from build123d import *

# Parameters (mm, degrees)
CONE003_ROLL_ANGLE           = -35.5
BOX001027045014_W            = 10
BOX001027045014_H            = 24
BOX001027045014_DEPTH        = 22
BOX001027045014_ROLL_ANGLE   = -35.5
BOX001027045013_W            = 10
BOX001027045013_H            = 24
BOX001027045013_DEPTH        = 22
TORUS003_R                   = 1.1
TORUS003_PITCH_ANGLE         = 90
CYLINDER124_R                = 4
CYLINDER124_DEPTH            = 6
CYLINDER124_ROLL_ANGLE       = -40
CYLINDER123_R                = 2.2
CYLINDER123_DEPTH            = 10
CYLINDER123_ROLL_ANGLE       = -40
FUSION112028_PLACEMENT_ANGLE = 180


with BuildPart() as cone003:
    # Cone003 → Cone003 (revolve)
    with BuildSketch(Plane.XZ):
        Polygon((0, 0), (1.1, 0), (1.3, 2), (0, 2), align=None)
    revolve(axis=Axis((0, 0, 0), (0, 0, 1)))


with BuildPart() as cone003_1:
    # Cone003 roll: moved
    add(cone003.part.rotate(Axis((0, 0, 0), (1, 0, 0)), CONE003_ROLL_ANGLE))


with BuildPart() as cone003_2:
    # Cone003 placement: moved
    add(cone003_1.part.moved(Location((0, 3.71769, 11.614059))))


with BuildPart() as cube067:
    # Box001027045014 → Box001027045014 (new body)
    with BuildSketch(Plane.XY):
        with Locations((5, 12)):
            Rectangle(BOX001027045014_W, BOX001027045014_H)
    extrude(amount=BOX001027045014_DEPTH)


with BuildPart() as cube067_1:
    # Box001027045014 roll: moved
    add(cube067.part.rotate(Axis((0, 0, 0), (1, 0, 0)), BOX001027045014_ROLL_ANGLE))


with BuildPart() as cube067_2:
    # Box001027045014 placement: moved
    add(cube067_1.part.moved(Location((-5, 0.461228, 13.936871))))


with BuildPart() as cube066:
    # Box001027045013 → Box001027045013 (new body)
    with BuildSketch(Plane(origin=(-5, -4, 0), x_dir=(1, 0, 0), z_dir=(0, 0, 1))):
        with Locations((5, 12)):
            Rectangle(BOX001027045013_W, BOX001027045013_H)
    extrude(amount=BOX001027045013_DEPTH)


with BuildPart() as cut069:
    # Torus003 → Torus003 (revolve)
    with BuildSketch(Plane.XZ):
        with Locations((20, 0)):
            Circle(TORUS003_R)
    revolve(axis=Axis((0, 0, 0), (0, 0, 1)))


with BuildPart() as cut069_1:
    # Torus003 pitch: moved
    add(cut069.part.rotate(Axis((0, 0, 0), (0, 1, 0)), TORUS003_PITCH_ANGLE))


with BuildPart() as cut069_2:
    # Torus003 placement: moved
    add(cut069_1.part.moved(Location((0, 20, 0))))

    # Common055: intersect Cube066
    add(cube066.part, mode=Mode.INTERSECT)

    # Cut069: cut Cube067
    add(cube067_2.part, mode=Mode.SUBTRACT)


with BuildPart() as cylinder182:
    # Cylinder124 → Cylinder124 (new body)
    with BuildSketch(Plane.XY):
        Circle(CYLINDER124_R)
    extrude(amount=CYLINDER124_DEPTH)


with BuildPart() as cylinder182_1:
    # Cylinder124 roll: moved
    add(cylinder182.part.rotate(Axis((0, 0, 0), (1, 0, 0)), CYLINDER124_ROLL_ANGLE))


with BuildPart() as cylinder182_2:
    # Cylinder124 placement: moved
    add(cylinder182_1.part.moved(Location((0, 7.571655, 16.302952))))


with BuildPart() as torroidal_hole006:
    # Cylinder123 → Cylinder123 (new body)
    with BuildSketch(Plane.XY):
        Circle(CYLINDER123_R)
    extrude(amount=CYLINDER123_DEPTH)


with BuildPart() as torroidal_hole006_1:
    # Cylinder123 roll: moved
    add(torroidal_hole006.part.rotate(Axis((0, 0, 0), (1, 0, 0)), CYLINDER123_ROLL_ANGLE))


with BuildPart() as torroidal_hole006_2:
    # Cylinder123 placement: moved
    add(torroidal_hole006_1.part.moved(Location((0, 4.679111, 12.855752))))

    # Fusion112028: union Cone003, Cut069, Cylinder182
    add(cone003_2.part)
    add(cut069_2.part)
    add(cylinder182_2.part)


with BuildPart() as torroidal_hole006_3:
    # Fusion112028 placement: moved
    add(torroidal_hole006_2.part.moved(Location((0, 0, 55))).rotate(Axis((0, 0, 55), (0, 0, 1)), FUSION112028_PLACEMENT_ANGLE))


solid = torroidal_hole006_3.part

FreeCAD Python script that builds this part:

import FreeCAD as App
import Part
import Sketcher
from FreeCAD import Vector

doc = App.newDocument("Part")
body = doc.addObject("PartDesign::Body", "Body")

# Sketch on XZ plane
sketch1 = body.newObject("Sketcher::SketchObject", "Sketch")
sketch1.AttachmentSupport = (doc.getObject("XZ_Plane"), [""])
sketch1.MapMode = "FlatFace"
sketch1.addGeometry([
    Part.LineSegment(Vector(0, 0, 0), Vector(1.1, 0, 0)),
    Part.LineSegment(Vector(1.1, 0, 0), Vector(1.3, 2, 0)),
    Part.LineSegment(Vector(1.3, 2, 0), Vector(0, 2, 0)),
    Part.LineSegment(Vector(0, 2, 0), Vector(0, 0, 0)),
], False)
sketch1.addConstraint([
    Sketcher.Constraint("Coincident", 0, 2, 1, 1),
    Sketcher.Constraint("Coincident", 1, 2, 2, 1),
    Sketcher.Constraint("Coincident", 2, 2, 3, 1),
    Sketcher.Constraint("Coincident", 3, 2, 0, 1),
    Sketcher.Constraint("Horizontal", 0),
    Sketcher.Constraint("Horizontal", 2),
    Sketcher.Constraint("Vertical", 3),
    Sketcher.Constraint("Coincident", 3, 2, -1, 1),
    Sketcher.Constraint("DistanceY", 3, 2, 3, 1, 2.0),
    Sketcher.Constraint("DistanceX", 0, 1, 0, 2, 1.1),
    Sketcher.Constraint("DistanceX", 2, 2, 2, 1, 1.3),
])
revolution = body.newObject("PartDesign::Revolution", "Revolution")
revolution.Profile = sketch1
revolution.ReferenceAxis = (sketch1, ["V_Axis"])
revolution.Angle = 360
body2 = doc.addObject("PartDesign::Body", "Body001")
doc.recompute()

body.Placement = App.Placement(Vector(0, 0, 0), App.Rotation(Vector(1, 0, 0), 324.5))
boolean = body2.newObject("PartDesign::Boolean", "Boolean")
boolean.Type = "Fuse"
boolean.addObjects([body])
body3 = doc.addObject("PartDesign::Body", "Body002")
doc.recompute()

body2.Placement = App.Placement(Vector(0, 3.71769, 11.614059), App.Rotation(Vector(0, 0, 1), 0))
boolean2 = body3.newObject("PartDesign::Boolean", "Boolean001")
boolean2.Type = "Fuse"
boolean2.addObjects([body2])
body4 = doc.addObject("PartDesign::Body", "Body003")

# Sketch on XY plane
sketch2 = body4.newObject("Sketcher::SketchObject", "Sketch001")
sketch2.AttachmentSupport = (doc.getObject("XY_Plane003"), [""])
sketch2.MapMode = "FlatFace"
sketch2.addGeometry([
    Part.LineSegment(Vector(0, 24, 0), Vector(0, 0, 0)),
    Part.LineSegment(Vector(0, 0, 0), Vector(10, 0, 0)),
    Part.LineSegment(Vector(10, 0, 0), Vector(10, 24, 0)),
    Part.LineSegment(Vector(10, 24, 0), Vector(0, 24, 0)),
], False)
sketch2.addConstraint([
    Sketcher.Constraint("Coincident", 0, 2, 1, 1),
    Sketcher.Constraint("Coincident", 1, 2, 2, 1),
    Sketcher.Constraint("Coincident", 2, 2, 3, 1),
    Sketcher.Constraint("Coincident", 3, 2, 0, 1),
    Sketcher.Constraint("Vertical", 0),
    Sketcher.Constraint("Horizontal", 1),
    Sketcher.Constraint("Vertical", 2),
    Sketcher.Constraint("Horizontal", 3),
    Sketcher.Constraint("Coincident", 0, 2, -1, 1),
    Sketcher.Constraint("DistanceX", 1, 1, 1, 2, 10.0),
    Sketcher.Constraint("DistanceY", 0, 2, 0, 1, 24.0),
])
pad1 = body4.newObject("PartDesign::Pad", "Pad")
pad1.Profile = sketch2
pad1.Length = 22
body5 = doc.addObject("PartDesign::Body", "Body004")
doc.recompute()

body4.Placement = App.Placement(Vector(0, 0, 0), App.Rotation(Vector(1, 0, 0), 324.5))
boolean3 = body5.newObject("PartDesign::Boolean", "Boolean002")
boolean3.Type = "Fuse"
boolean3.addObjects([body4])
body6 = doc.addObject("PartDesign::Body", "Body005")
doc.recompute()

body5.Placement = App.Placement(Vector(-5, 0.461228, 13.936871), App.Rotation(Vector(0, 0, 1), 0))
boolean4 = body6.newObject("PartDesign::Boolean", "Boolean003")
boolean4.Type = "Fuse"
boolean4.addObjects([body5])
body7 = doc.addObject("PartDesign::Body", "Body006")

# Sketch on XY plane
sketch3 = body7.newObject("Sketcher::SketchObject", "Sketch002")
sketch3.AttachmentSupport = (doc.getObject("XY_Plane006"), [""])
sketch3.MapMode = "FlatFace"
sketch3.addGeometry([
    Part.LineSegment(Vector(-5, 20, 0), Vector(-5, -4, 0)),
    Part.LineSegment(Vector(-5, -4, 0), Vector(5, -4, 0)),
    Part.LineSegment(Vector(5, -4, 0), Vector(5, 20, 0)),
    Part.LineSegment(Vector(5, 20, 0), Vector(-5, 20, 0)),
], False)
sketch3.addConstraint([
    Sketcher.Constraint("Coincident", 0, 2, 1, 1),
    Sketcher.Constraint("Coincident", 1, 2, 2, 1),
    Sketcher.Constraint("Coincident", 2, 2, 3, 1),
    Sketcher.Constraint("Coincident", 3, 2, 0, 1),
    Sketcher.Constraint("Vertical", 0),
    Sketcher.Constraint("Horizontal", 1),
    Sketcher.Constraint("Vertical", 2),
    Sketcher.Constraint("Horizontal", 3),
    Sketcher.Constraint("DistanceX", 1, 1, 1, 2, 10.0),
    Sketcher.Constraint("DistanceY", 0, 2, 0, 1, 24.0),
    Sketcher.Constraint("DistanceX", 0, 2, -1, 1, 5.0),
    Sketcher.Constraint("DistanceY", 0, 2, -1, 1, 4.0),
])
pad2 = body7.newObject("PartDesign::Pad", "Pad001")
pad2.Profile = sketch3
pad2.Length = 22
body8 = doc.addObject("PartDesign::Body", "Body007")

# Sketch on XZ plane
sketch4 = body8.newObject("Sketcher::SketchObject", "Sketch003")
sketch4.AttachmentSupport = (doc.getObject("XZ_Plane007"), [""])
sketch4.MapMode = "FlatFace"
sketch4.addGeometry(Part.Circle(Vector(20, 0, 0), Vector(0, 0, 1), 1.1), False)
sketch4.addConstraint([
    Sketcher.Constraint("PointOnObject", 0, 3, -1),
    Sketcher.Constraint("Diameter", 0, 2.2),
    Sketcher.Constraint("DistanceX", -1, 1, 0, 3, 20.0),
])
revolution2 = body8.newObject("PartDesign::Revolution", "Revolution001")
revolution2.Profile = sketch4
revolution2.ReferenceAxis = (sketch4, ["V_Axis"])
revolution2.Angle = 360
body9 = doc.addObject("PartDesign::Body", "Body008")
doc.recompute()

body8.Placement = App.Placement(Vector(0, 0, 0), App.Rotation(Vector(0, 1, 0), 90))
boolean5 = body9.newObject("PartDesign::Boolean", "Boolean004")
boolean5.Type = "Fuse"
boolean5.addObjects([body8])
body10 = doc.addObject("PartDesign::Body", "Body009")
doc.recompute()

body9.Placement = App.Placement(Vector(0, 20, 0), App.Rotation(Vector(0, 0, 1), 0))
boolean6 = body10.newObject("PartDesign::Boolean", "Boolean005")
boolean6.Type = "Fuse"
boolean6.addObjects([body9])
doc.recompute()

boolean7 = body10.newObject("PartDesign::Boolean", "Boolean006")
boolean7.Type = "Common"
boolean7.addObjects([body7])
doc.recompute()

boolean8 = body10.newObject("PartDesign::Boolean", "Boolean007")
boolean8.Type = "Cut"
boolean8.addObjects([body6])
body11 = doc.addObject("PartDesign::Body", "Body010")

# Sketch on XY plane
sketch5 = body11.newObject("Sketcher::SketchObject", "Sketch004")
sketch5.AttachmentSupport = (doc.getObject("XY_Plane010"), [""])
sketch5.MapMode = "FlatFace"
sketch5.addGeometry(Part.Circle(Vector(0, 0, 0), Vector(0, 0, 1), 4), False)
sketch5.addConstraint([
    Sketcher.Constraint("Coincident", 0, 3, -1, 1),
    Sketcher.Constraint("Diameter", 0, 8.0),
])
pad3 = body11.newObject("PartDesign::Pad", "Pad002")
pad3.Profile = sketch5
pad3.Length = 6
body12 = doc.addObject("PartDesign::Body", "Body011")
doc.recompute()

body11.Placement = App.Placement(Vector(0, 0, 0), App.Rotation(Vector(1, 0, 0), 320))
boolean9 = body12.newObject("PartDesign::Boolean", "Boolean008")
boolean9.Type = "Fuse"
boolean9.addObjects([body11])
body13 = doc.addObject("PartDesign::Body", "Body012")
doc.recompute()

body12.Placement = App.Placement(Vector(0, 7.571655, 16.302952), App.Rotation(Vector(0, 0, 1), 0))
boolean10 = body13.newObject("PartDesign::Boolean", "Boolean009")
boolean10.Type = "Fuse"
boolean10.addObjects([body12])
body14 = doc.addObject("PartDesign::Body", "Body013")

# Sketch on XY plane
sketch6 = body14.newObject("Sketcher::SketchObject", "Sketch005")
sketch6.AttachmentSupport = (doc.getObject("XY_Plane013"), [""])
sketch6.MapMode = "FlatFace"
sketch6.addGeometry(Part.Circle(Vector(0, 0, 0), Vector(0, 0, 1), 2.2), False)
sketch6.addConstraint([
    Sketcher.Constraint("Coincident", 0, 3, -1, 1),
    Sketcher.Constraint("Diameter", 0, 4.4),
])
pad4 = body14.newObject("PartDesign::Pad", "Pad003")
pad4.Profile = sketch6
pad4.Length = 10
body15 = doc.addObject("PartDesign::Body", "Body014")
doc.recompute()

body14.Placement = App.Placement(Vector(0, 0, 0), App.Rotation(Vector(1, 0, 0), 320))
boolean11 = body15.newObject("PartDesign::Boolean", "Boolean010")
boolean11.Type = "Fuse"
boolean11.addObjects([body14])
body16 = doc.addObject("PartDesign::Body", "Body015")
doc.recompute()

body15.Placement = App.Placement(Vector(0, 4.679111, 12.855752), App.Rotation(Vector(0, 0, 1), 0))
boolean12 = body16.newObject("PartDesign::Boolean", "Boolean011")
boolean12.Type = "Fuse"
boolean12.addObjects([body15])
doc.recompute()

boolean13 = body16.newObject("PartDesign::Boolean", "Boolean012")
boolean13.Type = "Fuse"
boolean13.addObjects([body3])
doc.recompute()

boolean14 = body16.newObject("PartDesign::Boolean", "Boolean013")
boolean14.Type = "Fuse"
boolean14.addObjects([body10])
doc.recompute()

boolean15 = body16.newObject("PartDesign::Boolean", "Boolean014")
boolean15.Type = "Fuse"
boolean15.addObjects([body13])
body17 = doc.addObject("PartDesign::Body", "Body016")
doc.recompute()

body16.Placement = App.Placement(Vector(0, 0, 55), App.Rotation(Vector(0, 0, 1), 180))
boolean16 = body17.newObject("PartDesign::Boolean", "Boolean015")
boolean16.Type = "Fuse"
boolean16.addObjects([body16])

doc.recompute()
